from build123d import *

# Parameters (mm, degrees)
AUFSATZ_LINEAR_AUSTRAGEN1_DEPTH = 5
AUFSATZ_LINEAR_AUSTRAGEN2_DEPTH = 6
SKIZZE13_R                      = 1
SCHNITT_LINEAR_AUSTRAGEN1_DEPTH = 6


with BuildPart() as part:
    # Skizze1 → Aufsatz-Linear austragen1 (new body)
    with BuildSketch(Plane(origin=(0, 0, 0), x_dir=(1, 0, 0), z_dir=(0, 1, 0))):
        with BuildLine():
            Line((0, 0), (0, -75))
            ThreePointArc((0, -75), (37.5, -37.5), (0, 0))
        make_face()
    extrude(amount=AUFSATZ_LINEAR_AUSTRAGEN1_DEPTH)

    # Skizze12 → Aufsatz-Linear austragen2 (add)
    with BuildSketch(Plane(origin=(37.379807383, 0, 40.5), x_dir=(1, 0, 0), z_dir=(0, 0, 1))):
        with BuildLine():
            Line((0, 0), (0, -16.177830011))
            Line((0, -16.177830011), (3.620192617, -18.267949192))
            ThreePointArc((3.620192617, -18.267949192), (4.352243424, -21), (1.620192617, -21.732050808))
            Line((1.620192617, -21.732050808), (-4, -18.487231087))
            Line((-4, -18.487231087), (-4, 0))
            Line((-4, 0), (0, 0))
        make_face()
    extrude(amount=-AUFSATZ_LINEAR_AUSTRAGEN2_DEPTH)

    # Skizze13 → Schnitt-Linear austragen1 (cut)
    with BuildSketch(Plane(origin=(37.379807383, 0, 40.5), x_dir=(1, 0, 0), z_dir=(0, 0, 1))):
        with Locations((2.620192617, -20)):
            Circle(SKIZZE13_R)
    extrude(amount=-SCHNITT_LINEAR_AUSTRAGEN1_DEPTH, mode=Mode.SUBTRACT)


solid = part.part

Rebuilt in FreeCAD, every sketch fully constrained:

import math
import FreeCAD as App
import Part
import Sketcher

V = App.Vector
Q = App.Units.Quantity

doc = App.newDocument("Part")
body = doc.addObject("PartDesign::Body", "Body")

# Sketch on XZ plane
sketch1 = body.newObject("Sketcher::SketchObject", "Sketch")
sketch1.AttachmentSupport = (doc.getObject("XZ_Plane"), [""])
sketch1.MapMode = "FlatFace"
sketch1.addGeometry(Part.LineSegment(V(0, 0, 0), V(0, 75, 0)), False)
sketch1.addGeometry(Part.ArcOfCircle(Part.Circle(V(0, 38, 0), V(0, 0, 1), 38), math.radians(-90), math.radians(90)), False)
sketch1.addConstraint(Sketcher.Constraint("Coincident", 0, 1, 1, 1))
sketch1.addConstraint(Sketcher.Constraint("Coincident", 1, 2, 0, 2))
sketch1.addConstraint(Sketcher.Constraint("Vertical", 0))
sketch1.addConstraint(Sketcher.Constraint("Coincident", 0, 1, -1, 1))
sketch1.addConstraint(Sketcher.Constraint("PointOnObject", 1, 3, -2))
sketch1.addConstraint(Sketcher.Constraint("Radius", 1, 37.5))
pad1 = body.newObject("PartDesign::Pad", "Pad")
pad1.Profile = sketch1
pad1.Length = 5
pad1.Reversed = True

# Sketch on XY plane
sketch2 = body.newObject("Sketcher::SketchObject", "Sketch001")
sketch2.AttachmentSupport = (doc.getObject("XY_Plane"), [""])
sketch2.MapMode = "FlatFace"
sketch2.AttachmentOffset = App.Placement(V(0, 0, 40.5), App.Rotation())
sketch2.addGeometry(Part.LineSegment(V(37.4, -16.2, 0), V(37.4, 0, 0)), False)
sketch2.addGeometry(Part.LineSegment(V(37.4, 0, 0), V(33.4, 0, 0)), False)
sketch2.addGeometry(Part.LineSegment(V(33.4, 0, 0), V(33.4, -18.5, 0)), False)
sketch2.addGeometry(Part.LineSegment(V(33.4, -18.5, 0), V(39, -21.7, 0)), False)
sketch2.addGeometry(Part.ArcOfCircle(Part.Circle(V(40, -20, 0), V(0, 0, 1), 2), math.radians(-120), math.radians(60)), False)
sketch2.addGeometry(Part.LineSegment(V(41, -18.3, 0), V(37.4, -16.2, 0)), False)
sketch2.addConstraint(Sketcher.Constraint("Coincident", 0, 2, 1, 1))
sketch2.addConstraint(Sketcher.Constraint("Coincident", 1, 2, 2, 1))
sketch2.addConstraint(Sketcher.Constraint("Coincident", 2, 2, 3, 1))
sketch2.addConstraint(Sketcher.Constraint("Tangent", 3, 2, 4, 1))
sketch2.addConstraint(Sketcher.Constraint("Tangent", 4, 2, 5, 1))
sketch2.addConstraint(Sketcher.Constraint("Coincident", 5, 2, 0, 1))
sketch2.addConstraint(Sketcher.Constraint("Vertical", 0))
sketch2.addConstraint(Sketcher.Constraint("Horizontal", 1))
sketch2.addConstraint(Sketcher.Constraint("Vertical", 2))
sketch2.addConstraint(Sketcher.Constraint("PointOnObject", 0, 2, -1))
sketch2.addConstraint(Sketcher.Constraint("Parallel", 3, 5))
sketch2.addConstraint(Sketcher.Constraint("Radius", 4, 2.0))
sketch2.addConstraint(Sketcher.Constraint("DistanceX", 1, 2, 1, 1, 4.0))
sketch2.addConstraint(Sketcher.Constraint("Angle", 3, Q("-30 deg")))
sketch2.addConstraint(Sketcher.Constraint("DistanceX", -1, 1, 4, 3, 40.0))
sketch2.addConstraint(Sketcher.Constraint("DistanceY", 4, 3, -1, 1, 20.0))
sketch2.addConstraint(Sketcher.Constraint("DistanceY", 0, 1, 0, 2, 16.17783))
pad2 = body.newObject("PartDesign::Pad", "Pad001")
pad2.Profile = sketch2
pad2.Length = 6
pad2.Reversed = True

# Sketch on XY plane
sketch3 = body.newObject("Sketcher::SketchObject", "Sketch002")
sketch3.AttachmentSupport = (doc.getObject("XY_Plane"), [""])
sketch3.MapMode = "FlatFace"
sketch3.AttachmentOffset = App.Placement(V(0, 0, 40.5), App.Rotation())
sketch3.addGeometry(Part.Circle(V(40, -20, 0), V(0, 0, 1), 1), False)
sketch3.addConstraint(Sketcher.Constraint("Diameter", 0, 2.0))
sketch3.addConstraint(Sketcher.Constraint("DistanceX", -1, 1, 0, 3, 40.0))
sketch3.addConstraint(Sketcher.Constraint("DistanceY", 0, 3, -1, 1, 20.0))
pocket1 = body.newObject("PartDesign::Pocket", "Pocket")
pocket1.Profile = sketch3
pocket1.Length = 6

doc.recompute()
